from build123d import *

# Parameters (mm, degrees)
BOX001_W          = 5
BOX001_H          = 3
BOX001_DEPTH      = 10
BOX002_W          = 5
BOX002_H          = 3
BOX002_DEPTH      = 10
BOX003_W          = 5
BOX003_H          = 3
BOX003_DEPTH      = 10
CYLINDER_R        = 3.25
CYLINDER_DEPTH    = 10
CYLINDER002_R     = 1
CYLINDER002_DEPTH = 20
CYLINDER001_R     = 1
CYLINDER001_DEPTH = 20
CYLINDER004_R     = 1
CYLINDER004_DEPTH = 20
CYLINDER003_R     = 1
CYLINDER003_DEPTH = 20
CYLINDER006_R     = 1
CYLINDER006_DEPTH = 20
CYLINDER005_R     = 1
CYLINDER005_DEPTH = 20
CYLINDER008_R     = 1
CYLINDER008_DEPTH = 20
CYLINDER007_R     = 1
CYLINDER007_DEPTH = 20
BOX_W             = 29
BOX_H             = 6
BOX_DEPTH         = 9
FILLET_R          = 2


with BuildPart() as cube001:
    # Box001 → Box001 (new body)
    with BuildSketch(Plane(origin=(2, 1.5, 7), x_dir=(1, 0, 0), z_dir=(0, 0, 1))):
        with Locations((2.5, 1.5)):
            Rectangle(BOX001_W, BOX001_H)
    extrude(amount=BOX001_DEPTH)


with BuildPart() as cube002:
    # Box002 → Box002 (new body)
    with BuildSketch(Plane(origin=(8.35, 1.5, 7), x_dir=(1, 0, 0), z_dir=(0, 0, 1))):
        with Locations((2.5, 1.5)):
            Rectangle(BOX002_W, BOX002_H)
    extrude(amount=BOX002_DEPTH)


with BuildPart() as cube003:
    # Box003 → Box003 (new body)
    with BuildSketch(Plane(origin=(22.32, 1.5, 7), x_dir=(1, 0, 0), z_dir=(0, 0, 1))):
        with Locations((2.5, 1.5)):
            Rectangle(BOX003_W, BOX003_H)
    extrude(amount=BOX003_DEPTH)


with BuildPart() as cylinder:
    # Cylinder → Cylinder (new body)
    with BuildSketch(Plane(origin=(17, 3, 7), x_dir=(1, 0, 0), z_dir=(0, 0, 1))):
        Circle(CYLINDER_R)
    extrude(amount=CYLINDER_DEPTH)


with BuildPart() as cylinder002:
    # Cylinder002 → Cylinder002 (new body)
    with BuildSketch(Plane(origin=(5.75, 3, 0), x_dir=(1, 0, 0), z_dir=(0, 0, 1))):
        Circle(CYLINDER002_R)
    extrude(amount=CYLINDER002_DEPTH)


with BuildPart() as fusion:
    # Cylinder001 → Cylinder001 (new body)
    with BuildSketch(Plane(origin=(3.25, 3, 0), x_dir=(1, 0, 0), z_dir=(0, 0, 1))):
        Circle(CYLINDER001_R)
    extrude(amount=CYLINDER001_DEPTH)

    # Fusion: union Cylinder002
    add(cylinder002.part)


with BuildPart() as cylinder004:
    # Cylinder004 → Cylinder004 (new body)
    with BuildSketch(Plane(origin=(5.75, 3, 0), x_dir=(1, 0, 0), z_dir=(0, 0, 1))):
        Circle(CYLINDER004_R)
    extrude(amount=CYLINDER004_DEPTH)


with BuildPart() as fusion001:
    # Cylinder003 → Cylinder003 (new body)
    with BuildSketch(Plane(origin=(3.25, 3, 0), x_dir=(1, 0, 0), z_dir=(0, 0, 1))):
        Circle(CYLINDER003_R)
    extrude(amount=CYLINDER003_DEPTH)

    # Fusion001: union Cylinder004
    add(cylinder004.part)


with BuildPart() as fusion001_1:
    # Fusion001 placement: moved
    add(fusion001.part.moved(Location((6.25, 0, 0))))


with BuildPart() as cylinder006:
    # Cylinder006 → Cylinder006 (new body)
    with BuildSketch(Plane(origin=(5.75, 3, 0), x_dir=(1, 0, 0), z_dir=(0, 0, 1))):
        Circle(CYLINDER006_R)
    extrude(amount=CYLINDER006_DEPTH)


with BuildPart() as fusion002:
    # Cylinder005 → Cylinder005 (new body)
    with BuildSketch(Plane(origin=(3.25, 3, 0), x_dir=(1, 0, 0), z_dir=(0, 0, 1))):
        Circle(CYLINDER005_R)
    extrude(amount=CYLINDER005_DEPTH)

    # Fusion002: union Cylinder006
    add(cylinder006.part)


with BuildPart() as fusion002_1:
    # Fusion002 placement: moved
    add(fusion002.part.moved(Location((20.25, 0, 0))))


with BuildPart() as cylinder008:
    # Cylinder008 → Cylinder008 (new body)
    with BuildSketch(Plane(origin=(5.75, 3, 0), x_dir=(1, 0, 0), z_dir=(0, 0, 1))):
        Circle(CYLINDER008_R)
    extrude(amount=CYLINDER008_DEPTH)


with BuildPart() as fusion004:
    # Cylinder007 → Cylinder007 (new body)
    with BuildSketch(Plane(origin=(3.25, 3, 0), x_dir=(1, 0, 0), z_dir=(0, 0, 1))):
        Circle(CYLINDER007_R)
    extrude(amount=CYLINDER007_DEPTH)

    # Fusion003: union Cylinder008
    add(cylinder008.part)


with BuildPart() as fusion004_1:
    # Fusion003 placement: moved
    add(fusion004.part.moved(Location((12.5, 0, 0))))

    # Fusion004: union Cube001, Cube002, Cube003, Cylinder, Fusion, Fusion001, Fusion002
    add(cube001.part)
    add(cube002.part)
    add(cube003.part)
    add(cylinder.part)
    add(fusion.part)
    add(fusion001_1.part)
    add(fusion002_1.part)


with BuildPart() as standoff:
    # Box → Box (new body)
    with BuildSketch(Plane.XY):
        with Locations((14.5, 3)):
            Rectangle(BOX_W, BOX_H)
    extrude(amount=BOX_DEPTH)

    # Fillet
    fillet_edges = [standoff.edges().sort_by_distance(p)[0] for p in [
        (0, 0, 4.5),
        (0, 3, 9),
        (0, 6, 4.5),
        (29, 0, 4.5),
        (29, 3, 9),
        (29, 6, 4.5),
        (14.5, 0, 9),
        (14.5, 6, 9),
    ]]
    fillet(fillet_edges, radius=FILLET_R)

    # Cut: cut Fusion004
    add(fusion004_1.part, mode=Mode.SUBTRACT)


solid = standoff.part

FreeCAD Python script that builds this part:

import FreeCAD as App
import Part
import Sketcher
from FreeCAD import Vector
Q = App.Units.Quantity


def edges_at(feature, points):
    """Names of the edges that pass closest to the given points."""
    edges = feature.Shape.Edges
    near = lambda p: min(range(len(edges)), key=lambda i: edges[i].distToShape(Part.Vertex(*p))[0])
    return sorted({f"Edge{near(p) + 1}" for p in points})

doc = App.newDocument("Part")
params = doc.addObject("Spreadsheet::Sheet", "Params")
for row, (alias, value) in enumerate([
    ("sketch1_width", "5 mm"),
    ("sketch1_height", "3 mm"),
    ("pad1_length", "10 mm"),
    ("sketch2_width", "5 mm"),
    ("sketch2_height", "3 mm"),
    ("pad2_length", "10 mm"),
    ("sketch3_width", "5 mm"),
    ("sketch3_height", "3 mm"),
    ("pad3_length", "10 mm"),
    ("sketch4_diameter", "6.5 mm"),
    ("pad4_length", "10 mm"),
    ("sketch5_diameter", "2 mm"),
    ("pad5_length", "20 mm"),
    ("sketch6_diameter", "2 mm"),
    ("pad6_length", "20 mm"),
    ("sketch7_diameter", "2 mm"),
    ("pad7_length", "20 mm"),
    ("sketch8_diameter", "2 mm"),
    ("pad8_length", "20 mm"),
    ("sketch9_diameter", "2 mm"),
    ("pad9_length", "20 mm"),
    ("sketch10_diameter", "2 mm"),
    ("pad10_length", "20 mm"),
    ("sketch11_diameter", "2 mm"),
    ("pad11_length", "20 mm"),
    ("sketch12_diameter", "2 mm"),
    ("pad12_length", "20 mm"),
    ("sketch13_width", "29 mm"),
    ("sketch13_height", "6 mm"),
    ("pad13_length", "9 mm"),
    ("fillet_radius", "2 mm"),
], start=1):
    params.set(f"A{row}", alias)
    params.set(f"B{row}", "=" + value)
    params.setAlias(f"B{row}", alias)

body = doc.addObject("PartDesign::Body", "Body")

# Sketch on XY plane
sketch1 = body.newObject("Sketcher::SketchObject", "Sketch")
sketch1.AttachmentSupport = (doc.getObject("XY_Plane"), [""])
sketch1.MapMode = "FlatFace"
sketch1.AttachmentOffset = App.Placement(Vector(0, 0, 7), App.Rotation())
sketch1.addGeometry([
    Part.LineSegment(Vector(2, 4.5, 0), Vector(2, 1.5, 0)),
    Part.LineSegment(Vector(2, 1.5, 0), Vector(7, 1.5, 0)),
    Part.LineSegment(Vector(7, 1.5, 0), Vector(7, 4.5, 0)),
    Part.LineSegment(Vector(7, 4.5, 0), Vector(2, 4.5, 0)),
], False)
sketch1.addConstraint([
    Sketcher.Constraint("Coincident", 0, 2, 1, 1),
    Sketcher.Constraint("Coincident", 1, 2, 2, 1),
    Sketcher.Constraint("Coincident", 2, 2, 3, 1),
    Sketcher.Constraint("Coincident", 3, 2, 0, 1),
    Sketcher.Constraint("Vertical", 0),
    Sketcher.Constraint("Horizontal", 1),
    Sketcher.Constraint("Vertical", 2),
    Sketcher.Constraint("Horizontal", 3),
    Sketcher.Constraint("DistanceX", 1, 1, 1, 2, Q("5 mm")),
    Sketcher.Constraint("DistanceY", 0, 2, 0, 1, Q("3 mm")),
    Sketcher.Constraint("DistanceX", -1, 1, 0, 2, Q("2 mm")),
    Sketcher.Constraint("DistanceY", -1, 1, 0, 2, Q("1.5 mm")),
])
sketch1.setExpression("Constraints[8]", "Params.sketch1_width")
sketch1.setExpression("Constraints[9]", "Params.sketch1_height")
pad1 = body.newObject("PartDesign::Pad", "Pad")
pad1.Profile = sketch1
pad1.setExpression("Length", "Params.pad1_length")
body2 = doc.addObject("PartDesign::Body", "Body001")

# Sketch on XY plane
sketch2 = body2.newObject("Sketcher::SketchObject", "Sketch001")
sketch2.AttachmentSupport = (doc.getObject("XY_Plane001"), [""])
sketch2.MapMode = "FlatFace"
sketch2.AttachmentOffset = App.Placement(Vector(0, 0, 7), App.Rotation())
sketch2.addGeometry([
    Part.LineSegment(Vector(8.3, 4.5, 0), Vector(8.3, 1.5, 0)),
    Part.LineSegment(Vector(8.3, 1.5, 0), Vector(13.3, 1.5, 0)),
    Part.LineSegment(Vector(13.3, 1.5, 0), Vector(13.3, 4.5, 0)),
    Part.LineSegment(Vector(13.3, 4.5, 0), Vector(8.3, 4.5, 0)),
], False)
sketch2.addConstraint([
    Sketcher.Constraint("Coincident", 0, 2, 1, 1),
    Sketcher.Constraint("Coincident", 1, 2, 2, 1),
    Sketcher.Constraint("Coincident", 2, 2, 3, 1),
    Sketcher.Constraint("Coincident", 3, 2, 0, 1),
    Sketcher.Constraint("Vertical", 0),
    Sketcher.Constraint("Horizontal", 1),
    Sketcher.Constraint("Vertical", 2),
    Sketcher.Constraint("Horizontal", 3),
    Sketcher.Constraint("DistanceX", 1, 1, 1, 2, Q("5 mm")),
    Sketcher.Constraint("DistanceY", 0, 2, 0, 1, Q("3 mm")),
    Sketcher.Constraint("DistanceY", -1, 1, 0, 2, Q("1.5 mm")),
    Sketcher.Constraint("DistanceX", -1, 1, 0, 2, Q("8.35 mm")),
])
sketch2.setExpression("Constraints[8]", "Params.sketch2_width")
sketch2.setExpression("Constraints[9]", "Params.sketch2_height")
pad2 = body2.newObject("PartDesign::Pad", "Pad001")
pad2.Profile = sketch2
pad2.setExpression("Length", "Params.pad2_length")
body3 = doc.addObject("PartDesign::Body", "Body002")

# Sketch on XY plane
sketch3 = body3.newObject("Sketcher::SketchObject", "Sketch002")
sketch3.AttachmentSupport = (doc.getObject("XY_Plane002"), [""])
sketch3.MapMode = "FlatFace"
sketch3.AttachmentOffset = App.Placement(Vector(0, 0, 7), App.Rotation())
sketch3.addGeometry([
    Part.LineSegment(Vector(22.3, 4.5, 0), Vector(22.3, 1.5, 0)),
    Part.LineSegment(Vector(22.3, 1.5, 0), Vector(27.3, 1.5, 0)),
    Part.LineSegment(Vector(27.3, 1.5, 0), Vector(27.3, 4.5, 0)),
    Part.LineSegment(Vector(27.3, 4.5, 0), Vector(22.3, 4.5, 0)),
], False)
sketch3.addConstraint([
    Sketcher.Constraint("Coincident", 0, 2, 1, 1),
    Sketcher.Constraint("Coincident", 1, 2, 2, 1),
    Sketcher.Constraint("Coincident", 2, 2, 3, 1),
    Sketcher.Constraint("Coincident", 3, 2, 0, 1),
    Sketcher.Constraint("Vertical", 0),
    Sketcher.Constraint("Horizontal", 1),
    Sketcher.Constraint("Vertical", 2),
    Sketcher.Constraint("Horizontal", 3),
    Sketcher.Constraint("DistanceX", 1, 1, 1, 2, Q("5 mm")),
    Sketcher.Constraint("DistanceY", 0, 2, 0, 1, Q("3 mm")),
    Sketcher.Constraint("DistanceY", -1, 1, 0, 2, Q("1.5 mm")),
    Sketcher.Constraint("DistanceX", -1, 1, 0, 2, Q("22.32 mm")),
])
sketch3.setExpression("Constraints[8]", "Params.sketch3_width")
sketch3.setExpression("Constraints[9]", "Params.sketch3_height")
pad3 = body3.newObject("PartDesign::Pad", "Pad002")
pad3.Profile = sketch3
pad3.setExpression("Length", "Params.pad3_length")
body4 = doc.addObject("PartDesign::Body", "Body003")

# Sketch on XY plane
sketch4 = body4.newObject("Sketcher::SketchObject", "Sketch003")
sketch4.AttachmentSupport = (doc.getObject("XY_Plane003"), [""])
sketch4.MapMode = "FlatFace"
sketch4.AttachmentOffset = App.Placement(Vector(0, 0, 7), App.Rotation())
sketch4.addGeometry(Part.Circle(Vector(17, 3, 0), Vector(0, 0, 1), 3.2), False)
sketch4.addConstraint([
    Sketcher.Constraint("Diameter", 0, Q("6.5 mm")),
    Sketcher.Constraint("DistanceX", -1, 1, 0, 3, Q("17 mm")),
    Sketcher.Constraint("DistanceY", -1, 1, 0, 3, Q("3 mm")),
])
sketch4.setExpression("Constraints[0]", "Params.sketch4_diameter")
pad4 = body4.newObject("PartDesign::Pad", "Pad003")
pad4.Profile = sketch4
pad4.setExpression("Length", "Params.pad4_length")
body5 = doc.addObject("PartDesign::Body", "Body004")

# Sketch on XY plane
sketch5 = body5.newObject("Sketcher::SketchObject", "Sketch004")
sketch5.AttachmentSupport = (doc.getObject("XY_Plane004"), [""])
sketch5.MapMode = "FlatFace"
sketch5.addGeometry(Part.Circle(Vector(5.8, 3, 0), Vector(0, 0, 1), 1), False)
sketch5.addConstraint([
    Sketcher.Constraint("Diameter", 0, Q("2 mm")),
    Sketcher.Constraint("DistanceY", -1, 1, 0, 3, Q("3 mm")),
    Sketcher.Constraint("DistanceX", -1, 1, 0, 3, Q("5.75 mm")),
])
sketch5.setExpression("Constraints[0]", "Params.sketch5_diameter")
pad5 = body5.newObject("PartDesign::Pad", "Pad004")
pad5.Profile = sketch5
pad5.setExpression("Length", "Params.pad5_length")
body6 = doc.addObject("PartDesign::Body", "Body005")
body6.AllowCompound = True

# Sketch on XY plane
sketch6 = body6.newObject("Sketcher::SketchObject", "Sketch005")
sketch6.AttachmentSupport = (doc.getObject("XY_Plane005"), [""])
sketch6.MapMode = "FlatFace"
sketch6.addGeometry(Part.Circle(Vector(3.2, 3, 0), Vector(0, 0, 1), 1), False)
sketch6.addConstraint([
    Sketcher.Constraint("Diameter", 0, Q("2 mm")),
    Sketcher.Constraint("DistanceY", -1, 1, 0, 3, Q("3 mm")),
    Sketcher.Constraint("DistanceX", -1, 1, 0, 3, Q("3.25 mm")),
])
sketch6.setExpression("Constraints[0]", "Params.sketch6_diameter")
pad6 = body6.newObject("PartDesign::Pad", "Pad005")
pad6.Profile = sketch6
pad6.setExpression("Length", "Params.pad6_length")
doc.recompute()

boolean = body6.newObject("PartDesign::Boolean", "Boolean")
boolean.Type = "Fuse"
boolean.addObjects([body5])
body7 = doc.addObject("PartDesign::Body", "Body006")

# Sketch on XY plane
sketch7 = body7.newObject("Sketcher::SketchObject", "Sketch006")
sketch7.AttachmentSupport = (doc.getObject("XY_Plane006"), [""])
sketch7.MapMode = "FlatFace"
sketch7.addGeometry(Part.Circle(Vector(5.8, 3, 0), Vector(0, 0, 1), 1), False)
sketch7.addConstraint([
    Sketcher.Constraint("Diameter", 0, Q("2 mm")),
    Sketcher.Constraint("DistanceY", -1, 1, 0, 3, Q("3 mm")),
    Sketcher.Constraint("DistanceX", -1, 1, 0, 3, Q("5.75 mm")),
])
sketch7.setExpression("Constraints[0]", "Params.sketch7_diameter")
pad7 = body7.newObject("PartDesign::Pad", "Pad006")
pad7.Profile = sketch7
pad7.setExpression("Length", "Params.pad7_length")
body8 = doc.addObject("PartDesign::Body", "Body007")
body8.AllowCompound = True

# Sketch on XY plane
sketch8 = body8.newObject("Sketcher::SketchObject", "Sketch007")
sketch8.AttachmentSupport = (doc.getObject("XY_Plane007"), [""])
sketch8.MapMode = "FlatFace"
sketch8.addGeometry(Part.Circle(Vector(3.2, 3, 0), Vector(0, 0, 1), 1), False)
sketch8.addConstraint([
    Sketcher.Constraint("Diameter", 0, Q("2 mm")),
    Sketcher.Constraint("DistanceY", -1, 1, 0, 3, Q("3 mm")),
    Sketcher.Constraint("DistanceX", -1, 1, 0, 3, Q("3.25 mm")),
])
sketch8.setExpression("Constraints[0]", "Params.sketch8_diameter")
pad8 = body8.newObject("PartDesign::Pad", "Pad007")
pad8.Profile = sketch8
pad8.setExpression("Length", "Params.pad8_length")
doc.recompute()

boolean2 = body8.newObject("PartDesign::Boolean", "Boolean001")
boolean2.Type = "Fuse"
boolean2.addObjects([body7])
body9 = doc.addObject("PartDesign::Body", "Body008")
body9.AllowCompound = True
doc.recompute()

body8.Placement = App.Placement(Vector(6.25, 0, 0), App.Rotation(Vector(0, 0, 1), 0))
boolean3 = body9.newObject("PartDesign::Boolean", "Boolean002")
boolean3.Type = "Fuse"
boolean3.addObjects([body8])
body10 = doc.addObject("PartDesign::Body", "Body009")

# Sketch on XY plane
sketch9 = body10.newObject("Sketcher::SketchObject", "Sketch008")
sketch9.AttachmentSupport = (doc.getObject("XY_Plane009"), [""])
sketch9.MapMode = "FlatFace"
sketch9.addGeometry(Part.Circle(Vector(5.8, 3, 0), Vector(0, 0, 1), 1), False)
sketch9.addConstraint([
    Sketcher.Constraint("Diameter", 0, Q("2 mm")),
    Sketcher.Constraint("DistanceY", -1, 1, 0, 3, Q("3 mm")),
    Sketcher.Constraint("DistanceX", -1, 1, 0, 3, Q("5.75 mm")),
])
sketch9.setExpression("Constraints[0]", "Params.sketch9_diameter")
pad9 = body10.newObject("PartDesign::Pad", "Pad008")
pad9.Profile = sketch9
pad9.setExpression("Length", "Params.pad9_length")
body11 = doc.addObject("PartDesign::Body", "Body010")
body11.AllowCompound = True

# Sketch on XY plane
sketch10 = body11.newObject("Sketcher::SketchObject", "Sketch009")
sketch10.AttachmentSupport = (doc.getObject("XY_Plane010"), [""])
sketch10.MapMode = "FlatFace"
sketch10.addGeometry(Part.Circle(Vector(3.2, 3, 0), Vector(0, 0, 1), 1), False)
sketch10.addConstraint([
    Sketcher.Constraint("Diameter", 0, Q("2 mm")),
    Sketcher.Constraint("DistanceY", -1, 1, 0, 3, Q("3 mm")),
    Sketcher.Constraint("DistanceX", -1, 1, 0, 3, Q("3.25 mm")),
])
sketch10.setExpression("Constraints[0]", "Params.sketch10_diameter")
pad10 = body11.newObject("PartDesign::Pad", "Pad009")
pad10.Profile = sketch10
pad10.setExpression("Length", "Params.pad10_length")
doc.recompute()

boolean4 = body11.newObject("PartDesign::Boolean", "Boolean003")
boolean4.Type = "Fuse"
boolean4.addObjects([body10])
body12 = doc.addObject("PartDesign::Body", "Body011")
body12.AllowCompound = True
doc.recompute()

body11.Placement = App.Placement(Vector(20.25, 0, 0), App.Rotation(Vector(0, 0, 1), 0))
boolean5 = body12.newObject("PartDesign::Boolean", "Boolean004")
boolean5.Type = "Fuse"
boolean5.addObjects([body11])
body13 = doc.addObject("PartDesign::Body", "Body012")

# Sketch on XY plane
sketch11 = body13.newObject("Sketcher::SketchObject", "Sketch010")
sketch11.AttachmentSupport = (doc.getObject("XY_Plane012"), [""])
sketch11.MapMode = "FlatFace"
sketch11.addGeometry(Part.Circle(Vector(5.8, 3, 0), Vector(0, 0, 1), 1), False)
sketch11.addConstraint([
    Sketcher.Constraint("Diameter", 0, Q("2 mm")),
    Sketcher.Constraint("DistanceY", -1, 1, 0, 3, Q("3 mm")),
    Sketcher.Constraint("DistanceX", -1, 1, 0, 3, Q("5.75 mm")),
])
sketch11.setExpression("Constraints[0]", "Params.sketch11_diameter")
pad11 = body13.newObject("PartDesign::Pad", "Pad010")
pad11.Profile = sketch11
pad11.setExpression("Length", "Params.pad11_length")
body14 = doc.addObject("PartDesign::Body", "Body013")
body14.AllowCompound = True

# Sketch on XY plane
sketch12 = body14.newObject("Sketcher::SketchObject", "Sketch011")
sketch12.AttachmentSupport = (doc.getObject("XY_Plane013"), [""])
sketch12.MapMode = "FlatFace"
sketch12.addGeometry(Part.Circle(Vector(3.2, 3, 0), Vector(0, 0, 1), 1), False)
sketch12.addConstraint([
    Sketcher.Constraint("Diameter", 0, Q("2 mm")),
    Sketcher.Constraint("DistanceY", -1, 1, 0, 3, Q("3 mm")),
    Sketcher.Constraint("DistanceX", -1, 1, 0, 3, Q("3.25 mm")),
])
sketch12.setExpression("Constraints[0]", "Params.sketch12_diameter")
pad12 = body14.newObject("PartDesign::Pad", "Pad011")
pad12.Profile = sketch12
pad12.setExpression("Length", "Params.pad12_length")
doc.recompute()

boolean6 = body14.newObject("PartDesign::Boolean", "Boolean005")
boolean6.Type = "Fuse"
boolean6.addObjects([body13])
body15 = doc.addObject("PartDesign::Body", "Body014")
body15.AllowCompound = True
doc.recompute()

body14.Placement = App.Placement(Vector(12.5, 0, 0), App.Rotation(Vector(0, 0, 1), 0))
boolean7 = body15.newObject("PartDesign::Boolean", "Boolean006")
boolean7.Type = "Fuse"
boolean7.addObjects([body14])
doc.recompute()

boolean8 = body15.newObject("PartDesign::Boolean", "Boolean007")
boolean8.Type = "Fuse"
boolean8.addObjects([body])
doc.recompute()

boolean9 = body15.newObject("PartDesign::Boolean", "Boolean008")
boolean9.Type = "Fuse"
boolean9.addObjects([body2])
doc.recompute()

boolean10 = body15.newObject("PartDesign::Boolean", "Boolean009")
boolean10.Type = "Fuse"
boolean10.addObjects([body3])
doc.recompute()

boolean11 = body15.newObject("PartDesign::Boolean", "Boolean010")
boolean11.Type = "Fuse"
boolean11.addObjects([body4])
doc.recompute()

boolean12 = body15.newObject("PartDesign::Boolean", "Boolean011")
boolean12.Type = "Fuse"
boolean12.addObjects([body6])
doc.recompute()

boolean13 = body15.newObject("PartDesign::Boolean", "Boolean012")
boolean13.Type = "Fuse"
boolean13.addObjects([body9])
doc.recompute()

boolean14 = body15.newObject("PartDesign::Boolean", "Boolean013")
boolean14.Type = "Fuse"
boolean14.addObjects([body12])
body16 = doc.addObject("PartDesign::Body", "Body015")

# Sketch on XY plane
sketch13 = body16.newObject("Sketcher::SketchObject", "Sketch012")
sketch13.AttachmentSupport = (doc.getObject("XY_Plane015"), [""])
sketch13.MapMode = "FlatFace"
sketch13.addGeometry([
    Part.LineSegment(Vector(0, 6, 0), Vector(0, 0, 0)),
    Part.LineSegment(Vector(0, 0, 0), Vector(29, 0, 0)),
    Part.LineSegment(Vector(29, 0, 0), Vector(29, 6, 0)),
    Part.LineSegment(Vector(29, 6, 0), Vector(0, 6, 0)),
], False)
sketch13.addConstraint([
    Sketcher.Constraint("Coincident", 0, 2, 1, 1),
    Sketcher.Constraint("Coincident", 1, 2, 2, 1),
    Sketcher.Constraint("Coincident", 2, 2, 3, 1),
    Sketcher.Constraint("Coincident", 3, 2, 0, 1),
    Sketcher.Constraint("Vertical", 0),
    Sketcher.Constraint("Horizontal", 1),
    Sketcher.Constraint("Vertical", 2),
    Sketcher.Constraint("Horizontal", 3),
    Sketcher.Constraint("Coincident", 0, 2, -1, 1),
    Sketcher.Constraint("DistanceX", 1, 1, 1, 2, Q("29 mm")),
    Sketcher.Constraint("DistanceY", 0, 2, 0, 1, Q("6 mm")),
])
sketch13.setExpression("Constraints[9]", "Params.sketch13_width")
sketch13.setExpression("Constraints[10]", "Params.sketch13_height")
pad13 = body16.newObject("PartDesign::Pad", "Pad012")
pad13.Profile = sketch13
pad13.setExpression("Length", "Params.pad13_length")
doc.recompute()

fillet = body16.newObject("PartDesign::Fillet", "Fillet")
fillet.Base = (pad13, edges_at(pad13, [
    (0, 0, 4.5),
    (0, 3, 9),
    (0, 6, 4.5),
    (29, 0, 4.5),
    (29, 3, 9),
    (29, 6, 4.5),
    (14.5, 0, 9),
    (14.5, 6, 9),
]))
fillet.setExpression("Radius", "Params.fillet_radius")
doc.recompute()

boolean15 = body16.newObject("PartDesign::Boolean", "Boolean014")
boolean15.Type = "Cut"
boolean15.addObjects([body15])

doc.recompute()
